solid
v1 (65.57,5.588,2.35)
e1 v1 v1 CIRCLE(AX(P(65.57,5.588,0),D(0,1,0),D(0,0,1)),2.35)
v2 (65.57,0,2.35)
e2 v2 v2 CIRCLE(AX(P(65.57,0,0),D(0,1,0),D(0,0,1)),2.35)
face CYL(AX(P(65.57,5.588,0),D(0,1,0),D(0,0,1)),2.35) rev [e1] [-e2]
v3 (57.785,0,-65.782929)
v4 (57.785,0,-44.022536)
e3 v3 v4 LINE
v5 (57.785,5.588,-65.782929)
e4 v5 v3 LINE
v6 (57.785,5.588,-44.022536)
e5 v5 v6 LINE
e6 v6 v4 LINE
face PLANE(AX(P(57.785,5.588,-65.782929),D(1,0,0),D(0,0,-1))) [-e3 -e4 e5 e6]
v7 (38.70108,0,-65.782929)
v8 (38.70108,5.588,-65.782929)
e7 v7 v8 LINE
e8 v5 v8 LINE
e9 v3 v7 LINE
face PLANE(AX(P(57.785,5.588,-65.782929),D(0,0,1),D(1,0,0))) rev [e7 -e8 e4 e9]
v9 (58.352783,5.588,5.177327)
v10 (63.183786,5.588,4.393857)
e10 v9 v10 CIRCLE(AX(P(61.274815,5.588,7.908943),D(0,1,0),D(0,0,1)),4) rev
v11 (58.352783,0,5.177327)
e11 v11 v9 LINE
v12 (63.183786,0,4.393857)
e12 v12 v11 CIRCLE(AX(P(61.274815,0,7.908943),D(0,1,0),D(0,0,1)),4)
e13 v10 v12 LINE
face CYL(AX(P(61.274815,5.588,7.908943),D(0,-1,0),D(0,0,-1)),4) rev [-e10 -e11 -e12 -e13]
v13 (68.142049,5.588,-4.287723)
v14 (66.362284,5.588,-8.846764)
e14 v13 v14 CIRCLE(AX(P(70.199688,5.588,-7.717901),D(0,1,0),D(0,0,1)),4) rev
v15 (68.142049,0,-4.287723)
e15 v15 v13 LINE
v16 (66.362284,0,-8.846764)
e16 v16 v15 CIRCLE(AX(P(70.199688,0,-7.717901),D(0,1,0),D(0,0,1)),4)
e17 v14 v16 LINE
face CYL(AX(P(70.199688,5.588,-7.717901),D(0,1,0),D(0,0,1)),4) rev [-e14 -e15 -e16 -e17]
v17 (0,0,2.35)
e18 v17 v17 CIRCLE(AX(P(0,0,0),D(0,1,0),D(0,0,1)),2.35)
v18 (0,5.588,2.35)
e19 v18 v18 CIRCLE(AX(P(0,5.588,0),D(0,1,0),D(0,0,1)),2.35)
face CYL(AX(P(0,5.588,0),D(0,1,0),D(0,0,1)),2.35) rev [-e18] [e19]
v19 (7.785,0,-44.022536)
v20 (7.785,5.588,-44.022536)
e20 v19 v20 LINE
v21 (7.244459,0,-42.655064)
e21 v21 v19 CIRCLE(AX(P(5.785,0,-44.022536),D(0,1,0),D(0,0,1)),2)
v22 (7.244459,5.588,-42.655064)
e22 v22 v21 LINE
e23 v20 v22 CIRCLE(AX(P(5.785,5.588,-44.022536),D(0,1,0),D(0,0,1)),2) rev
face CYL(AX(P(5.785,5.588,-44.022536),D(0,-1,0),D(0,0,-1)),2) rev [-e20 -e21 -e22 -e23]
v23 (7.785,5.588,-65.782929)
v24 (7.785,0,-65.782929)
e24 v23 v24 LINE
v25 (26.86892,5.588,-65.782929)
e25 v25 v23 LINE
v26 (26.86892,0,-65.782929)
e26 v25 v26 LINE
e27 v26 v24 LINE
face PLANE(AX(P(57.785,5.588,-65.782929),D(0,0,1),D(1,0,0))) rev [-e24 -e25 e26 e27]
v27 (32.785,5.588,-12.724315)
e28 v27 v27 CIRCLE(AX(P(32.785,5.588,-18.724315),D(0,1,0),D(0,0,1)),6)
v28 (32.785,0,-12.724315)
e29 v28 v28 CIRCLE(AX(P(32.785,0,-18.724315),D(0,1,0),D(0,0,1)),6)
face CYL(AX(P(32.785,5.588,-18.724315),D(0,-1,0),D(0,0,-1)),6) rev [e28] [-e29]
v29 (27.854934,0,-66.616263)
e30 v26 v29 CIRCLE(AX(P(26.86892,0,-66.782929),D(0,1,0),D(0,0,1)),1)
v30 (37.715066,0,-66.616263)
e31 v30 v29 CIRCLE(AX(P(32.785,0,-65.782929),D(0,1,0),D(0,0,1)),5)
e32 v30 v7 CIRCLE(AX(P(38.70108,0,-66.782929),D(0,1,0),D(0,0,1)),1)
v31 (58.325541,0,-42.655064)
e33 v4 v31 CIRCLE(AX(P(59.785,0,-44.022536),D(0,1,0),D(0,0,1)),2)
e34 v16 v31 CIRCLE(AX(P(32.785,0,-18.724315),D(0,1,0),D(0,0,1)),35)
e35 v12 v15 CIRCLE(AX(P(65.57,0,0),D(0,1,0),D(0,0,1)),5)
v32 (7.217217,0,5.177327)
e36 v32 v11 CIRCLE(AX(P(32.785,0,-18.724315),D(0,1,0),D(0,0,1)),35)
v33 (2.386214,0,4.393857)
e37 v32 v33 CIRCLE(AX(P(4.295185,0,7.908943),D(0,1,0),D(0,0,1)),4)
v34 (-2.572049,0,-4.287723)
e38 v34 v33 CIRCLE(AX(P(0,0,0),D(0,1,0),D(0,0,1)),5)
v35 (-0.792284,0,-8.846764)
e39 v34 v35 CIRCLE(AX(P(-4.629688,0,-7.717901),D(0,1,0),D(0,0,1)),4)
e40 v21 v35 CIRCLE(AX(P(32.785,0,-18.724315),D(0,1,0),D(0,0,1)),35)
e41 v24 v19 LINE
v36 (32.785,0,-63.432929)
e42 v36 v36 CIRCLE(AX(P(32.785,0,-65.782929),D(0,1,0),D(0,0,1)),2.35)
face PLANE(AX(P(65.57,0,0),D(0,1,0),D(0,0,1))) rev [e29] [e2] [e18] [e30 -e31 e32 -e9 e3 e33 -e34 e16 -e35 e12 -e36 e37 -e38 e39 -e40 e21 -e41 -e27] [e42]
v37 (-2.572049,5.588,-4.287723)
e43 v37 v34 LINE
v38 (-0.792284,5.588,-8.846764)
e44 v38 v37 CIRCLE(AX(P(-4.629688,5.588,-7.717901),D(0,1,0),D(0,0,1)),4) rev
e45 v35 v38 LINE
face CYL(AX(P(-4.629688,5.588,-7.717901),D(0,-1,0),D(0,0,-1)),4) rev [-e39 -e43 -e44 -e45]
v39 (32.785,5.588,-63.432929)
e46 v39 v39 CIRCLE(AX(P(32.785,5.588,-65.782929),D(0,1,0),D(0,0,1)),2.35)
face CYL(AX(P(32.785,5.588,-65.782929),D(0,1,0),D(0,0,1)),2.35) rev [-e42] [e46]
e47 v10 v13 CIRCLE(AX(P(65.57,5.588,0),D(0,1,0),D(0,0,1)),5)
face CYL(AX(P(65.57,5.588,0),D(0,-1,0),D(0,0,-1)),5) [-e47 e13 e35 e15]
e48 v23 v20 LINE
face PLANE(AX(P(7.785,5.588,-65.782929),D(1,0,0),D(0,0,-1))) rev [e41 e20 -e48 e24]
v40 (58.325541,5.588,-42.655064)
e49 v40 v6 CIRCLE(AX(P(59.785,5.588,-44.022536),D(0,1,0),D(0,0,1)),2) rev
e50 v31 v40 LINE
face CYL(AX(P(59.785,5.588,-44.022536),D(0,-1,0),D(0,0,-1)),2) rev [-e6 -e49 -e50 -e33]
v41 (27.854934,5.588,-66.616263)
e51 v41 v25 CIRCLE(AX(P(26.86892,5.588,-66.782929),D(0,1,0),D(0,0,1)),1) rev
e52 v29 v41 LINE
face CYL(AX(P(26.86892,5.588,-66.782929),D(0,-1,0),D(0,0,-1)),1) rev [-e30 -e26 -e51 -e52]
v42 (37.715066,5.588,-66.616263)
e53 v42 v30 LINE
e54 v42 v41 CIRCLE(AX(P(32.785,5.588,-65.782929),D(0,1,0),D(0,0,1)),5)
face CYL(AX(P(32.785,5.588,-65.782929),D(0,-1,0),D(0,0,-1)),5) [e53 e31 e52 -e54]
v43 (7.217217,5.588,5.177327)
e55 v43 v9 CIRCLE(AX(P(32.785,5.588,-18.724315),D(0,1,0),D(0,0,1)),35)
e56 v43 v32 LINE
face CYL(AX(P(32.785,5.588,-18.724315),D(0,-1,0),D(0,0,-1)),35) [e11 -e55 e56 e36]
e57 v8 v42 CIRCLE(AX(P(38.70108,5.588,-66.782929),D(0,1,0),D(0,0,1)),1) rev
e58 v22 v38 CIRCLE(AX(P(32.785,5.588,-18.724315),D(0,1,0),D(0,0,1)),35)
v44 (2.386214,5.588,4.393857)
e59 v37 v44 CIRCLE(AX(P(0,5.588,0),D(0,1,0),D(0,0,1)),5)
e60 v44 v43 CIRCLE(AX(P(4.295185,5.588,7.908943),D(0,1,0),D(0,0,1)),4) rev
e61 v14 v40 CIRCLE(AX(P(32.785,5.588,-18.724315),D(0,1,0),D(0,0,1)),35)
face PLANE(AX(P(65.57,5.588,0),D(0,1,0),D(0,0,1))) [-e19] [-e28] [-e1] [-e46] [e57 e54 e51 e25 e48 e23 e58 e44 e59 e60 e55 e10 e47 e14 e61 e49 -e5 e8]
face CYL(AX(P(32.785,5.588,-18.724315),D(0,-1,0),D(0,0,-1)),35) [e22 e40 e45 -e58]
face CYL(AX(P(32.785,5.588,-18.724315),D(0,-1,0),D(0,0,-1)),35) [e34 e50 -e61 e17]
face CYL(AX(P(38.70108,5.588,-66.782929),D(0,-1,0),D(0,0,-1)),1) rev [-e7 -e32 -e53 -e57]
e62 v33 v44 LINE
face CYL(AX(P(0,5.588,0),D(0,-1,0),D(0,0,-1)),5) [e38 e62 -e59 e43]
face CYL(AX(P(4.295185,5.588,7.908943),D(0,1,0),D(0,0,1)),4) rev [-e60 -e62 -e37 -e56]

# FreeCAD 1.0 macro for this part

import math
import FreeCAD as App
import Part
import Sketcher

V = App.Vector
Q = App.Units.Quantity


def edges_at(feature, points):
    """Names of the edges that pass closest to the given points."""
    edges = feature.Shape.Edges
    near = lambda p: min(range(len(edges)), key=lambda i: edges[i].distToShape(Part.Vertex(*p))[0])
    return sorted({f"Edge{near(p) + 1}" for p in points})

doc = App.newDocument("Part")
params = doc.addObject("Spreadsheet::Sheet", "Params")
for row, (alias, value) in enumerate([
    ("sketch1_diameter", "12 mm"),
    ("sketch1_radius", "35 mm"),
    ("sketch1_radius2", "5 mm"),
    ("sketch1_width", "20 mm"),
    ("pad1_length", "5.588 mm"),
    ("sketch2_diameter", "4.7 mm"),
    ("hole_diameter", "4.7 mm"),
    ("fillet_radius", "1 mm"),
    ("fillet2_radius", "1 mm"),
    ("fillet3_radius", "4 mm"),
    ("fillet4_radius", "4 mm"),
    ("fillet5_radius", "4 mm"),
    ("fillet6_radius", "2 mm"),
    ("fillet7_radius", "2 mm"),
], start=1):
    params.set(f"A{row}", alias)
    params.set(f"B{row}", "=" + value)
    params.setAlias(f"B{row}", alias)

body = doc.addObject("PartDesign::Body", "Body")

# Sketch on XZ plane
sketch1 = body.newObject("Sketcher::SketchObject", "Sketch")
sketch1.AttachmentSupport = (doc.getObject("XZ_Plane"), [""])
sketch1.MapMode = "FlatFace"
sketch1.addGeometry([
    Part.ArcOfCircle(Part.Circle(V(32.785, -18.724315, 0), V(0, 0, 1), 35), math.radians(36.311702), math.radians(143.688298)),  # 0
    Part.ArcOfCircle(Part.Circle(V(65.57, 0, 0), V(0, 0, 1), 5), math.radians(-96.934484), math.radians(156.397971)),  # 1
    Part.ArcOfCircle(Part.Circle(V(32.785, -18.724315, 0), V(0, 0, 1), 35), math.radians(-44.415309), math.radians(23.151784)),  # 2
    Part.LineSegment(V(57.785, -43.219212, 0), V(57.785, -65.782929, 0)),  # 3
    Part.LineSegment(V(57.785, -65.782929, 0), V(37.785, -65.782929, 0)),  # 4
    Part.ArcOfCircle(Part.Circle(V(32.785, -65.782929, 0), V(0, 0, 1), 5), math.radians(180), math.radians(360)),  # 5
    Part.LineSegment(V(27.785, -65.782929, 0), V(7.785, -65.782929, 0)),  # 6
    Part.LineSegment(V(7.785, -65.782929, 0), V(7.785, -43.219212, 0)),  # 7
    Part.ArcOfCircle(Part.Circle(V(32.785, -18.724315, 0), V(0, 0, 1), 35), math.radians(156.848216), math.radians(224.415309)),  # 8
    Part.ArcOfCircle(Part.Circle(V(0, 0, 0), V(0, 0, 1), 5), math.radians(23.602029), math.radians(276.934484)),  # 9
    Part.Circle(V(32.785, -18.724315, 0), V(0, 0, 1), 6),  # 10
], False)
sketch1.addConstraint([
    Sketcher.Constraint("Coincident", 0, 1, 1, 2),
    Sketcher.Constraint("Coincident", 1, 1, 2, 2),
    Sketcher.Constraint("Coincident", 2, 1, 3, 1),
    Sketcher.Constraint("Coincident", 3, 2, 4, 1),
    Sketcher.Constraint("Coincident", 4, 2, 5, 2),
    Sketcher.Constraint("Coincident", 5, 1, 6, 1),
    Sketcher.Constraint("Coincident", 6, 2, 7, 1),
    Sketcher.Constraint("Coincident", 7, 2, 8, 2),
    Sketcher.Constraint("Coincident", 8, 1, 9, 2),
    Sketcher.Constraint("Coincident", 9, 1, 0, 2),
    Sketcher.Constraint("Vertical", 3),
    Sketcher.Constraint("Horizontal", 4),
    Sketcher.Constraint("Horizontal", 6),
    Sketcher.Constraint("Vertical", 7),
    Sketcher.Constraint("Coincident", 9, 3, -1, 1),
    Sketcher.Constraint("Coincident", 2, 3, 0, 3),
    Sketcher.Constraint("Coincident", 8, 3, 0, 3),
    Sketcher.Constraint("Coincident", 10, 3, 0, 3),
    Sketcher.Constraint("Equal", 0, 2),
    Sketcher.Constraint("Equal", 1, 5),
    Sketcher.Constraint("Equal", 2, 8),
    Sketcher.Constraint("Equal", 5, 9),
    Sketcher.Constraint("PointOnObject", 1, 3, -1),
    Sketcher.Constraint("Horizontal", 5, 3, 3, 2),
    Sketcher.Constraint("Horizontal", 4, 2, 5, 1),
    Sketcher.Constraint("Horizontal", 2, 1, 7, 2),
    Sketcher.Constraint("Horizontal", 1, 1, 8, 1),
    Sketcher.Constraint("Vertical", 2, 3, 5, 3),
    Sketcher.Constraint("Diameter", 10, Q("12 mm")),
    Sketcher.Constraint("Radius", 0, Q("35 mm")),
    Sketcher.Constraint("Radius", 1, Q("5 mm")),
    Sketcher.Constraint("DistanceX", 4, 2, 4, 1, Q("20 mm")),
    Sketcher.Constraint("DistanceX", -1, 1, 1, 3, Q("65.57 mm")),
    Sketcher.Constraint("DistanceY", 3, 2, 3, 1, Q("22.563717 mm")),
    Sketcher.Constraint("DistanceY", 5, 3, -1, 1, Q("65.782929 mm")),
])
sketch1.setExpression("Constraints[28]", "Params.sketch1_diameter")
sketch1.setExpression("Constraints[29]", "Params.sketch1_radius")
sketch1.setExpression("Constraints[30]", "Params.sketch1_radius2")
sketch1.setExpression("Constraints[31]", "Params.sketch1_width")
pad1 = body.newObject("PartDesign::Pad", "Pad")
pad1.Profile = sketch1
pad1.setExpression("Length", "Params.pad1_length")
pad1.Reversed = True

# Sketch on XZ plane
sketch2 = body.newObject("Sketcher::SketchObject", "Sketch001")
sketch2.AttachmentSupport = (doc.getObject("XZ_Plane"), [""])
sketch2.MapMode = "FlatFace"
sketch2.AttachmentOffset = App.Placement(V(0, 0, -5.588), App.Rotation())
sketch2.addGeometry([
    Part.Circle(V(0, 0, 0), V(0, 0, 1), 2.35),
    Part.Circle(V(65.57, 0, 0), V(0, 0, 1), 2.35),
    Part.Circle(V(32.785, -65.782929, 0), V(0, 0, 1), 2.35),
], False)
sketch2.addConstraint([
    Sketcher.Constraint("Coincident", 0, 3, -1, 1),
    Sketcher.Constraint("Equal", 0, 1),
    Sketcher.Constraint("Equal", 1, 2),
    Sketcher.Constraint("PointOnObject", 1, 3, -1),
    Sketcher.Constraint("Diameter", 0, Q("4.7 mm")),
    Sketcher.Constraint("DistanceX", -1, 1, 1, 3, Q("65.57 mm")),
    Sketcher.Constraint("DistanceX", -1, 1, 2, 3, Q("32.785 mm")),
    Sketcher.Constraint("DistanceY", 2, 3, -1, 1, Q("65.782929 mm")),
])
sketch2.setExpression("Constraints[4]", "Params.sketch2_diameter")
doc.recompute()
hole = body.newObject("PartDesign::Hole", "Hole")
hole.Profile = sketch2
hole.ThreadType = "None"
hole.setExpression("Diameter", "Params.hole_diameter")
hole.DepthType = "ThroughAll"
hole.Reversed = True
doc.recompute()

fillet = body.newObject("PartDesign::Fillet", "Fillet")
fillet.Base = (hole, edges_at(hole, [(27.785, 2.794, -65.783)]))
fillet.setExpression("Radius", "Params.fillet_radius")
doc.recompute()

fillet2 = body.newObject("PartDesign::Fillet", "Fillet001")
fillet2.Base = (fillet, edges_at(fillet, [(37.785, 2.794, -65.783)]))
fillet2.setExpression("Radius", "Params.fillet2_radius")
doc.recompute()

fillet3 = body.newObject("PartDesign::Fillet", "Fillet002")
fillet3.Base = (fillet2, edges_at(fillet2, [(0.604, 2.794, -4.963)]))
fillet3.setExpression("Radius", "Params.fillet3_radius")
doc.recompute()

fillet4 = body.newObject("PartDesign::Fillet", "Fillet003")
fillet4.Base = (fillet3, edges_at(fillet3, [(4.582, 2.794, 2.002)]))
fillet4.setExpression("Radius", "Params.fillet4_radius")
doc.recompute()

fillet5 = body.newObject("PartDesign::Fillet", "Fillet004")
fillet5.Base = (fillet4, edges_at(fillet4, [(60.988, 2.794, 2.002), (64.966, 2.794, -4.963)]))
fillet5.setExpression("Radius", "Params.fillet5_radius")
doc.recompute()

fillet6 = body.newObject("PartDesign::Fillet", "Fillet005")
fillet6.Base = (fillet5, edges_at(fillet5, [(57.785, 2.794, -43.219)]))
fillet6.setExpression("Radius", "Params.fillet6_radius")
doc.recompute()

fillet7 = body.newObject("PartDesign::Fillet", "Fillet006")
fillet7.Base = (fillet6, edges_at(fillet6, [(7.785, 2.794, -43.219)]))
fillet7.setExpression("Radius", "Params.fillet7_radius")

doc.recompute()
